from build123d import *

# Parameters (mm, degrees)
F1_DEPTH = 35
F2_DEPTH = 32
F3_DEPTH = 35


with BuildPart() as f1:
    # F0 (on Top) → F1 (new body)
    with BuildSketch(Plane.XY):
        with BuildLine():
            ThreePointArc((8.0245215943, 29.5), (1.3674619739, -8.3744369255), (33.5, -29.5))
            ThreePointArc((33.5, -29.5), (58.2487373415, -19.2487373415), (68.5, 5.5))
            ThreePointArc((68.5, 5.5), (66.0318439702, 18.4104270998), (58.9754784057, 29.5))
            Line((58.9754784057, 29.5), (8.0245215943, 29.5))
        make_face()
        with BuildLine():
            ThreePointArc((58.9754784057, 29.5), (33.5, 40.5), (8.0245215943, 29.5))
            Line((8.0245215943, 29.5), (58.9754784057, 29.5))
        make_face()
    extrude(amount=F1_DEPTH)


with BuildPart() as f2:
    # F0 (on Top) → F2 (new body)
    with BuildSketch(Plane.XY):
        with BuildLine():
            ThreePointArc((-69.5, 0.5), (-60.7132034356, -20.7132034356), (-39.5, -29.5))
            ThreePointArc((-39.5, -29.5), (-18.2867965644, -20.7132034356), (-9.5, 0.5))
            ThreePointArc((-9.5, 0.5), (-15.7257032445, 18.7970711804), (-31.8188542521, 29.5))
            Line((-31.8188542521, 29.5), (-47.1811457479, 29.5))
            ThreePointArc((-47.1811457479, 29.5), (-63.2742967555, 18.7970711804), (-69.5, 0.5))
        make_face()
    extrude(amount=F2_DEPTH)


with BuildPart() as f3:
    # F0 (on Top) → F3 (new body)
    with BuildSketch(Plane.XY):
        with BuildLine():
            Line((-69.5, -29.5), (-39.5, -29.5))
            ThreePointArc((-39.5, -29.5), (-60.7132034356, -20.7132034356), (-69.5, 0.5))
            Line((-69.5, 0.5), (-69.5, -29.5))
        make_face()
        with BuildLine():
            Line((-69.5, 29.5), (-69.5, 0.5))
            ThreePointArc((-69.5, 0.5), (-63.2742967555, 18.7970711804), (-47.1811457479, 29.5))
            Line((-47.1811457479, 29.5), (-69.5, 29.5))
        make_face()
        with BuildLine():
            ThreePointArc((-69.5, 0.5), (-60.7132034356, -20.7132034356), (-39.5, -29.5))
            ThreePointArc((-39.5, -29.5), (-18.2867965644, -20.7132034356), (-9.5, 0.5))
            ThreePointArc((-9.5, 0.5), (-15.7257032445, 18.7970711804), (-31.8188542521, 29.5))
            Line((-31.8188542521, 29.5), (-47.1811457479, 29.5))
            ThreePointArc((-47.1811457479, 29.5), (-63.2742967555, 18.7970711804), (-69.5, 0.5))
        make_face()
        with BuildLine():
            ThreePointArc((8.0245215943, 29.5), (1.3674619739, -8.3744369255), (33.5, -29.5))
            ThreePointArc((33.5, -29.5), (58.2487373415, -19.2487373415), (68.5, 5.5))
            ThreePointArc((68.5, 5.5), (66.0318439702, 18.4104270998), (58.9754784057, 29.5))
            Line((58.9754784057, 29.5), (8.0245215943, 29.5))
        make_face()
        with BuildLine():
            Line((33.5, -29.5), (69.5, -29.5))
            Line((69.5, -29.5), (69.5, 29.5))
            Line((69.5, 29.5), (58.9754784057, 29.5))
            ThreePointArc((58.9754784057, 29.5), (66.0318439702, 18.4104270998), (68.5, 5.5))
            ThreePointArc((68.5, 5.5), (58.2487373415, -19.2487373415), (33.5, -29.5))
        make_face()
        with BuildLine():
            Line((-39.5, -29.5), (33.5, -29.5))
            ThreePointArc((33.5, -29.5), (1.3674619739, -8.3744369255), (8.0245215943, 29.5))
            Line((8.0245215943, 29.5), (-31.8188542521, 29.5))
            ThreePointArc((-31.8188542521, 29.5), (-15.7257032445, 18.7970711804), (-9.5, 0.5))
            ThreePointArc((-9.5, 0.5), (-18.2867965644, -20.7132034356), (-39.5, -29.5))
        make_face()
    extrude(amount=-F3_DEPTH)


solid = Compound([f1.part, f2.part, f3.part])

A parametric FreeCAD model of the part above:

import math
import FreeCAD as App
import Part
import Sketcher

V = App.Vector
Q = App.Units.Quantity


def add_polygon(sketch, points):
    """Adds a closed chain of lines whose ends are joined by coincident constraints."""
    first, n = sketch.GeometryCount, len(points)
    for a, b in zip(points, points[1:] + points[:1]):
        sketch.addGeometry(Part.LineSegment(App.Vector(*a, 0), App.Vector(*b, 0)), False)
    for i in range(n):
        sketch.addConstraint(Sketcher.Constraint("Coincident", first + i, 2, first + (i + 1) % n, 1))

doc = App.newDocument("Part")
body = doc.addObject("PartDesign::Body", "Body")

# Sketch on XY plane
sketch1 = body.newObject("Sketcher::SketchObject", "Sketch")
sketch1.AttachmentSupport = (doc.getObject("XY_Plane"), [""])
sketch1.MapMode = "FlatFace"
sketch1.addGeometry([
    Part.ArcOfCircle(Part.Circle(V(34, 6, 0), V(0, 0, 1), 35), math.radians(-90), math.radians(43)),
    Part.ArcOfCircle(Part.Circle(V(34, 6, 0), V(0, 0, 1), 35), math.radians(43), math.radians(270)),
], False)
sketch1.addConstraint([
    Sketcher.Constraint("Tangent", 0, 1, 1, 2),
    Sketcher.Constraint("Coincident", 1, 1, 0, 2),
    Sketcher.Constraint("Vertical", 1, 3, 0, 1),
    Sketcher.Constraint("Radius", 0, Q("35 mm")),
    Sketcher.Constraint("DistanceY", 0, 3, 1, 1, Q("24 mm")),
    Sketcher.Constraint("DistanceX", -1, 1, 0, 3, Q("33.5 mm")),
    Sketcher.Constraint("DistanceY", -1, 1, 0, 3, Q("5.5 mm")),
])
pad1 = body.newObject("PartDesign::Pad", "Pad")
pad1.Profile = sketch1
pad1.Length = 35
body2 = doc.addObject("PartDesign::Body", "Body001")

# Sketch on XY plane
sketch2 = body2.newObject("Sketcher::SketchObject", "Sketch001")
sketch2.AttachmentSupport = (doc.getObject("XY_Plane001"), [""])
sketch2.MapMode = "FlatFace"
sketch2.addGeometry([
    Part.ArcOfCircle(Part.Circle(V(-40, 0, 0), V(0, 0, 1), 30), math.radians(180), math.radians(360)),
    Part.ArcOfCircle(Part.Circle(V(-40, 0, 0), V(0, 0, 1), 30), math.radians(0), math.radians(75)),
    Part.LineSegment(V(-32, 30, 0), V(-47, 30, 0)),
    Part.ArcOfCircle(Part.Circle(V(-40, 0, 0), V(0, 0, 1), 30), math.radians(105), math.radians(180)),
], False)
sketch2.addConstraint([
    Sketcher.Constraint("Tangent", 0, 2, 1, 1),
    Sketcher.Constraint("Coincident", 1, 2, 2, 1),
    Sketcher.Constraint("Coincident", 2, 2, 3, 1),
    Sketcher.Constraint("Tangent", 3, 2, 0, 1),
    Sketcher.Constraint("Horizontal", 2),
    Sketcher.Constraint("Equal", 0, 1),
    Sketcher.Constraint("Equal", 1, 3),
    Sketcher.Constraint("Horizontal", 3, 3, 0, 2),
    Sketcher.Constraint("Horizontal", 0, 2, 3, 2),
    Sketcher.Constraint("Radius", 0, Q("30 mm")),
    Sketcher.Constraint("DistanceY", 0, 3, 1, 2, Q("29 mm")),
    Sketcher.Constraint("DistanceX", 0, 3, -1, 1, Q("39.5 mm")),
    Sketcher.Constraint("DistanceY", -1, 1, 0, 3, Q("0.5 mm")),
])
pad2 = body2.newObject("PartDesign::Pad", "Pad001")
pad2.Profile = sketch2
pad2.Length = 32
body3 = doc.addObject("PartDesign::Body", "Body002")

# Sketch on XY plane
sketch3 = body3.newObject("Sketcher::SketchObject", "Sketch002")
sketch3.AttachmentSupport = (doc.getObject("XY_Plane002"), [""])
sketch3.MapMode = "FlatFace"
add_polygon(sketch3, [(-70, -30), (70, -30), (70, 30), (-70, 30)])  # lines 0-3
sketch3.addConstraint([
    Sketcher.Constraint("Horizontal", 0),
    Sketcher.Constraint("Vertical", 1),
    Sketcher.Constraint("Horizontal", 2),
    Sketcher.Constraint("Vertical", 3),
    Sketcher.Constraint("Symmetric", 0, 2, 2, 2, -1, 1),
    Sketcher.Constraint("DistanceX", 0, 1, 0, 2, Q("139 mm")),
    Sketcher.Constraint("DistanceY", 1, 1, 1, 2, Q("59 mm")),
])
pad3 = body3.newObject("PartDesign::Pad", "Pad002")
pad3.Profile = sketch3
pad3.Length = 35
pad3.Reversed = True

doc.recompute()
